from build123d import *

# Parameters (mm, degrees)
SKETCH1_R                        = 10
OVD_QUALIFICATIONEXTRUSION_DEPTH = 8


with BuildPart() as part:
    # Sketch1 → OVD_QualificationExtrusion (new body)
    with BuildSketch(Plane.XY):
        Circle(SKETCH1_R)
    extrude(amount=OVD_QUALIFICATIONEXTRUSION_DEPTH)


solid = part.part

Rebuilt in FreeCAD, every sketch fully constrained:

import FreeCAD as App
import Part
import Sketcher

V = App.Vector
Q = App.Units.Quantity

doc = App.newDocument("Part")
body = doc.addObject("PartDesign::Body", "Body")

sketch1 = body.newObject("Sketcher::SketchObject", "Sketch")
sketch1.AttachmentSupport = (doc.getObject("XY_Plane"), [""])
sketch1.MapMode = "FlatFace"
sketch1.addGeometry(Part.Circle(V(0, 0, 0), V(0, 0, 1), 10), False)
sketch1.addConstraint(Sketcher.Constraint("Coincident", 0, 3, -1, 1))
sketch1.addConstraint(Sketcher.Constraint("Diameter", 0, Q("20 mm")))
pad1 = body.newObject("PartDesign::Pad", "Pad")
pad1.Profile = sketch1
pad1.Length = 8

doc.recompute()
